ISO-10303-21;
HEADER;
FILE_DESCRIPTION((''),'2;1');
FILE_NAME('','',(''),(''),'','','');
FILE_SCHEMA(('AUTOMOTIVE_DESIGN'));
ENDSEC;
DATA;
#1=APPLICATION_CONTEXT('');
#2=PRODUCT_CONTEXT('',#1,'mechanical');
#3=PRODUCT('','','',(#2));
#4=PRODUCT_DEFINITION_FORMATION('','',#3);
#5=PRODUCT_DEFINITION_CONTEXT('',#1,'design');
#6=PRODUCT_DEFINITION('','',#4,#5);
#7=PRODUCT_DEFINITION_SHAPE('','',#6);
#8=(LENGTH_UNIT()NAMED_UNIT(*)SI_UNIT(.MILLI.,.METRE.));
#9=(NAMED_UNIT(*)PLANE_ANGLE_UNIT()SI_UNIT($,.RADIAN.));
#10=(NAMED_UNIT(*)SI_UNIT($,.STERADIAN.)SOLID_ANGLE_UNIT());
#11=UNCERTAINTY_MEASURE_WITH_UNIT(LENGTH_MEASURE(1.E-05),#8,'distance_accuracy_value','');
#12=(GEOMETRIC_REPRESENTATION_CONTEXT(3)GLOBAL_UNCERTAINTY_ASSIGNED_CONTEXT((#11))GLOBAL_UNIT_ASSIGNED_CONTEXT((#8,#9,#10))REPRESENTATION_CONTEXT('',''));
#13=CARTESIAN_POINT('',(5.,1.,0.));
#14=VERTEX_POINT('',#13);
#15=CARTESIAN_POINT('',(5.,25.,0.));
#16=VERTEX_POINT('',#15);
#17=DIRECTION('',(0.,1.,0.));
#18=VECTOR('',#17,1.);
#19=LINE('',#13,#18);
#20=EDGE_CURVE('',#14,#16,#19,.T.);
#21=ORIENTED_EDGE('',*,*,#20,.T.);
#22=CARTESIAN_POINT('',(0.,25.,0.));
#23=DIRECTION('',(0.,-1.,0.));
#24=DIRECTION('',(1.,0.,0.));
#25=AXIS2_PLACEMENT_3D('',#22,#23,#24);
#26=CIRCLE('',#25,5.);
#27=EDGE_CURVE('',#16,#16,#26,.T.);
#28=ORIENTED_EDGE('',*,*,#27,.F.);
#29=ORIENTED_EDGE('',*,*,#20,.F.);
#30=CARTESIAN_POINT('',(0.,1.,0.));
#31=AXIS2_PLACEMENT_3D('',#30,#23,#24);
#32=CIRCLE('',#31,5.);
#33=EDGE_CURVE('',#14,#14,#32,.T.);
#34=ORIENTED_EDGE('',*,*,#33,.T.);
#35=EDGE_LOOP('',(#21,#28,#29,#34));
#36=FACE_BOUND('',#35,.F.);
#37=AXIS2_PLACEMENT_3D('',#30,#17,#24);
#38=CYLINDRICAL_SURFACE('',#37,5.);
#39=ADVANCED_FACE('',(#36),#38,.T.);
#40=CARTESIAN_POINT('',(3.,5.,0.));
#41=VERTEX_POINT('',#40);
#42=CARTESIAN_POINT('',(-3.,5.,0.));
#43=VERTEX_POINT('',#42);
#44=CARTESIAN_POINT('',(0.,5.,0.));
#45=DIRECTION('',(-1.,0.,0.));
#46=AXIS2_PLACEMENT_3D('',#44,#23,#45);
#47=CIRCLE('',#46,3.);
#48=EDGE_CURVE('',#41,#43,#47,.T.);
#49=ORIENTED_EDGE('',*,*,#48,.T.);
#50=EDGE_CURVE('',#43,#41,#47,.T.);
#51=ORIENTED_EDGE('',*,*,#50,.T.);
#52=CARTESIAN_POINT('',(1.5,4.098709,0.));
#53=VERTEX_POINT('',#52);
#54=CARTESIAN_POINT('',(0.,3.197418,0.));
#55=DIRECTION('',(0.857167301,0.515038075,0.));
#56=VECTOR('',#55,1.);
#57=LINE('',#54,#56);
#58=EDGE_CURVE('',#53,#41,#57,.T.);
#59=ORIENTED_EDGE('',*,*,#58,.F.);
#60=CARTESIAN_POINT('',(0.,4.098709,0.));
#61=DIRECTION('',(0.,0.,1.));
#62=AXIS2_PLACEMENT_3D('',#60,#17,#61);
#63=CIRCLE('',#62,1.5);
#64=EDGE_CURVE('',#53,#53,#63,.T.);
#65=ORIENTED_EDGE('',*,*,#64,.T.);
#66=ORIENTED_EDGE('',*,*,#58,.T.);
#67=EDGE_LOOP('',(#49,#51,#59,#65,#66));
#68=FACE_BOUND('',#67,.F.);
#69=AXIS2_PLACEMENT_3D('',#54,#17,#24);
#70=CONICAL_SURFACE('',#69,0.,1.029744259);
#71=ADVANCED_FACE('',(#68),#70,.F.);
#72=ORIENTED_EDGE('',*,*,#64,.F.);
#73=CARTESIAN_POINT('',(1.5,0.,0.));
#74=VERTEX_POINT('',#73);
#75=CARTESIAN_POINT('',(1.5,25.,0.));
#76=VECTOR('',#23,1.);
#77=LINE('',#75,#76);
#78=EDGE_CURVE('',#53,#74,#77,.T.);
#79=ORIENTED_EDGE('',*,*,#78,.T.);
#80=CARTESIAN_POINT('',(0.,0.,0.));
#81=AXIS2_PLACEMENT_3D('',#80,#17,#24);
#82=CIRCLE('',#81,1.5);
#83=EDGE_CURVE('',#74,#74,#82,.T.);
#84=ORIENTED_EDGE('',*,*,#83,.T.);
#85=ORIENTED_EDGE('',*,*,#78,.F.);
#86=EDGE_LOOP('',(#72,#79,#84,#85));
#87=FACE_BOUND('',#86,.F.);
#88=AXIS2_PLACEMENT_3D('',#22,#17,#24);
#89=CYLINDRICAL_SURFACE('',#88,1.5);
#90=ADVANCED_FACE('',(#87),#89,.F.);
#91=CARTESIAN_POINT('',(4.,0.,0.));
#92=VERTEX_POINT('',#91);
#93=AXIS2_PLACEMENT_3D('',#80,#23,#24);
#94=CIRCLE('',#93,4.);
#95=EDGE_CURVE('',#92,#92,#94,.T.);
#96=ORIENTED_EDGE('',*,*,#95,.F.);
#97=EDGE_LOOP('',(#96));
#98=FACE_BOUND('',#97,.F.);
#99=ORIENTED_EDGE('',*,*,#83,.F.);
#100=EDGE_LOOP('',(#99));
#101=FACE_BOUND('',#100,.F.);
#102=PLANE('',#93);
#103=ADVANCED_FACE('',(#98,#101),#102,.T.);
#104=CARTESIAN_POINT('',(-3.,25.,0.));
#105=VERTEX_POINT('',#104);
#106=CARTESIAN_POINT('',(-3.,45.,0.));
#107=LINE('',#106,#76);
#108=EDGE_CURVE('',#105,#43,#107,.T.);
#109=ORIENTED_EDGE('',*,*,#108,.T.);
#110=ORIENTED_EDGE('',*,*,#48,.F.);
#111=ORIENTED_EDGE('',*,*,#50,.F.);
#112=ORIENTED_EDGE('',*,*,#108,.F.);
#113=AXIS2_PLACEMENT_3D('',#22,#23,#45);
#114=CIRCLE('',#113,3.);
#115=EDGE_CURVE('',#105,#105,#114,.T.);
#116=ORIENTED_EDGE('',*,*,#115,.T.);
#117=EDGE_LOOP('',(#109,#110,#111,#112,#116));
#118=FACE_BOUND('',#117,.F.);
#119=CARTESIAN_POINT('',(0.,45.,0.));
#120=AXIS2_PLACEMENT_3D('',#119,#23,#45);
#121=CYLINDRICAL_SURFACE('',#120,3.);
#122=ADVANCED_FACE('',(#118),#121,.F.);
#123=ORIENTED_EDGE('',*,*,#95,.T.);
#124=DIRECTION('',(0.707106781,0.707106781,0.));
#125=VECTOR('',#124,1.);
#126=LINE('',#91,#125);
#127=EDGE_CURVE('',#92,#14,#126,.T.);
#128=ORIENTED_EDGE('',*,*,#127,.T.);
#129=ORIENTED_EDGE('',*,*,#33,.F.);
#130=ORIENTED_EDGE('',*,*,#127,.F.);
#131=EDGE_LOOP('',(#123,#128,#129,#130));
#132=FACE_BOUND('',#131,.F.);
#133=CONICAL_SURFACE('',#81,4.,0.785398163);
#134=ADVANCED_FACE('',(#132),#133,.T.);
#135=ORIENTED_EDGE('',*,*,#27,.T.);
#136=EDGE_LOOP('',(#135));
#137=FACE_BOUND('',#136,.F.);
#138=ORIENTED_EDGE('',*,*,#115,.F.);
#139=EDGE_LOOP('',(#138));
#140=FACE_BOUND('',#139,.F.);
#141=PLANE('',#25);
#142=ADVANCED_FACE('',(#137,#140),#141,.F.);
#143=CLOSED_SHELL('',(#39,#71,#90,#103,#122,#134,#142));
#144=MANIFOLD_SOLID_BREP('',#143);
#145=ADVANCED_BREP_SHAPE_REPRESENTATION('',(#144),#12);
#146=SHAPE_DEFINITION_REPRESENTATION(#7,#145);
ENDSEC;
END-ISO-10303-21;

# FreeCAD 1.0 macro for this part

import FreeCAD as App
import Part
import Sketcher

doc = App.newDocument("Part")
body = doc.addObject("PartDesign::Body", "Body")

# Sketch on XY plane
sketch1 = doc.addObject("Sketcher::SketchObject", "Sketch")
body.addObject(sketch1)
sketch1.AttachmentSupport = (doc.XY_Plane, [""])
sketch1.MapMode = "FlatFace"
sketch1.addGeometry([
    Part.LineSegment(App.Vector(0, 0, 0), App.Vector(4, 0, 0)),  # 0
    Part.LineSegment(App.Vector(4, 0, 0), App.Vector(5, 1, 0)),  # 1
    Part.LineSegment(App.Vector(5, 1, 0), App.Vector(5, 25, 0)),  # 2
    Part.LineSegment(App.Vector(5, 25, 0), App.Vector(0, 25, 0)),  # 3
    Part.LineSegment(App.Vector(0, 25, 0), App.Vector(0, 0, 0)),  # 4
], False)
sketch1.addConstraint([
    Sketcher.Constraint("Coincident", 0, 2, 1, 1),
    Sketcher.Constraint("Coincident", 1, 2, 2, 1),
    Sketcher.Constraint("Coincident", 2, 2, 3, 1),
    Sketcher.Constraint("Coincident", 3, 2, 4, 1),
    Sketcher.Constraint("Coincident", 4, 2, 0, 1),
    Sketcher.Constraint("Horizontal", 0),
    Sketcher.Constraint("Vertical", 2),
    Sketcher.Constraint("Horizontal", 3),
    Sketcher.Constraint("Vertical", 4),
    Sketcher.Constraint("Coincident", 4, 2, -1, 1),
    Sketcher.Constraint("DistanceX", 0, 1, 0, 2, 4.0),
    Sketcher.Constraint("DistanceX", 3, 2, 3, 1, 5.0),
    Sketcher.Constraint("DistanceY", 2, 1, 2, 2, 24.0),
    Sketcher.Constraint("DistanceY", 4, 2, 4, 1, 25.0),
])
revolution = doc.addObject("PartDesign::Revolution", "Revolution")
body.addObject(revolution)
revolution.Profile = sketch1
revolution.ReferenceAxis = (sketch1, ["V_Axis"])
revolution.Angle = 360

# Sketch on XZ plane
sketch2 = doc.addObject("Sketcher::SketchObject", "Sketch001")
body.addObject(sketch2)
sketch2.AttachmentSupport = (doc.XZ_Plane, [""])
sketch2.MapMode = "FlatFace"
sketch2.AttachmentOffset = App.Placement(App.Vector(0, 0, -25), App.Rotation())
sketch2.addGeometry(Part.Circle(App.Vector(0, 0, 0), App.Vector(0, 0, 1), 3), False)
sketch2.addConstraint([
    Sketcher.Constraint("Coincident", 0, 3, -1, 1),
    Sketcher.Constraint("Diameter", 0, 6.0),
])
doc.recompute()
hole = doc.addObject("PartDesign::Hole", "Hole")
body.addObject(hole)
hole.Profile = sketch2
hole.ThreadType = "None"
hole.Diameter = 6
hole.DepthType = "Dimension"
hole.Depth = 20
hole.DrillPoint = "Angled"
hole.DrillPointAngle = 118
hole.Reversed = True

# Sketch on XZ plane
sketch3 = doc.addObject("Sketcher::SketchObject", "Sketch002")
body.addObject(sketch3)
sketch3.AttachmentSupport = (doc.XZ_Plane, [""])
sketch3.MapMode = "FlatFace"
sketch3.AttachmentOffset = App.Placement(App.Vector(0, 0, -25), App.Rotation())
sketch3.addGeometry(Part.Circle(App.Vector(0, 0, 0), App.Vector(0, 0, 1), 1.5), False)
sketch3.addConstraint([
    Sketcher.Constraint("Coincident", 0, 3, -1, 1),
    Sketcher.Constraint("Diameter", 0, 3.0),
])
pocket1 = doc.addObject("PartDesign::Pocket", "Pocket")
body.addObject(pocket1)
pocket1.Profile = sketch3
pocket1.Type = "ThroughAll"
pocket1.Reversed = True

doc.recompute()
